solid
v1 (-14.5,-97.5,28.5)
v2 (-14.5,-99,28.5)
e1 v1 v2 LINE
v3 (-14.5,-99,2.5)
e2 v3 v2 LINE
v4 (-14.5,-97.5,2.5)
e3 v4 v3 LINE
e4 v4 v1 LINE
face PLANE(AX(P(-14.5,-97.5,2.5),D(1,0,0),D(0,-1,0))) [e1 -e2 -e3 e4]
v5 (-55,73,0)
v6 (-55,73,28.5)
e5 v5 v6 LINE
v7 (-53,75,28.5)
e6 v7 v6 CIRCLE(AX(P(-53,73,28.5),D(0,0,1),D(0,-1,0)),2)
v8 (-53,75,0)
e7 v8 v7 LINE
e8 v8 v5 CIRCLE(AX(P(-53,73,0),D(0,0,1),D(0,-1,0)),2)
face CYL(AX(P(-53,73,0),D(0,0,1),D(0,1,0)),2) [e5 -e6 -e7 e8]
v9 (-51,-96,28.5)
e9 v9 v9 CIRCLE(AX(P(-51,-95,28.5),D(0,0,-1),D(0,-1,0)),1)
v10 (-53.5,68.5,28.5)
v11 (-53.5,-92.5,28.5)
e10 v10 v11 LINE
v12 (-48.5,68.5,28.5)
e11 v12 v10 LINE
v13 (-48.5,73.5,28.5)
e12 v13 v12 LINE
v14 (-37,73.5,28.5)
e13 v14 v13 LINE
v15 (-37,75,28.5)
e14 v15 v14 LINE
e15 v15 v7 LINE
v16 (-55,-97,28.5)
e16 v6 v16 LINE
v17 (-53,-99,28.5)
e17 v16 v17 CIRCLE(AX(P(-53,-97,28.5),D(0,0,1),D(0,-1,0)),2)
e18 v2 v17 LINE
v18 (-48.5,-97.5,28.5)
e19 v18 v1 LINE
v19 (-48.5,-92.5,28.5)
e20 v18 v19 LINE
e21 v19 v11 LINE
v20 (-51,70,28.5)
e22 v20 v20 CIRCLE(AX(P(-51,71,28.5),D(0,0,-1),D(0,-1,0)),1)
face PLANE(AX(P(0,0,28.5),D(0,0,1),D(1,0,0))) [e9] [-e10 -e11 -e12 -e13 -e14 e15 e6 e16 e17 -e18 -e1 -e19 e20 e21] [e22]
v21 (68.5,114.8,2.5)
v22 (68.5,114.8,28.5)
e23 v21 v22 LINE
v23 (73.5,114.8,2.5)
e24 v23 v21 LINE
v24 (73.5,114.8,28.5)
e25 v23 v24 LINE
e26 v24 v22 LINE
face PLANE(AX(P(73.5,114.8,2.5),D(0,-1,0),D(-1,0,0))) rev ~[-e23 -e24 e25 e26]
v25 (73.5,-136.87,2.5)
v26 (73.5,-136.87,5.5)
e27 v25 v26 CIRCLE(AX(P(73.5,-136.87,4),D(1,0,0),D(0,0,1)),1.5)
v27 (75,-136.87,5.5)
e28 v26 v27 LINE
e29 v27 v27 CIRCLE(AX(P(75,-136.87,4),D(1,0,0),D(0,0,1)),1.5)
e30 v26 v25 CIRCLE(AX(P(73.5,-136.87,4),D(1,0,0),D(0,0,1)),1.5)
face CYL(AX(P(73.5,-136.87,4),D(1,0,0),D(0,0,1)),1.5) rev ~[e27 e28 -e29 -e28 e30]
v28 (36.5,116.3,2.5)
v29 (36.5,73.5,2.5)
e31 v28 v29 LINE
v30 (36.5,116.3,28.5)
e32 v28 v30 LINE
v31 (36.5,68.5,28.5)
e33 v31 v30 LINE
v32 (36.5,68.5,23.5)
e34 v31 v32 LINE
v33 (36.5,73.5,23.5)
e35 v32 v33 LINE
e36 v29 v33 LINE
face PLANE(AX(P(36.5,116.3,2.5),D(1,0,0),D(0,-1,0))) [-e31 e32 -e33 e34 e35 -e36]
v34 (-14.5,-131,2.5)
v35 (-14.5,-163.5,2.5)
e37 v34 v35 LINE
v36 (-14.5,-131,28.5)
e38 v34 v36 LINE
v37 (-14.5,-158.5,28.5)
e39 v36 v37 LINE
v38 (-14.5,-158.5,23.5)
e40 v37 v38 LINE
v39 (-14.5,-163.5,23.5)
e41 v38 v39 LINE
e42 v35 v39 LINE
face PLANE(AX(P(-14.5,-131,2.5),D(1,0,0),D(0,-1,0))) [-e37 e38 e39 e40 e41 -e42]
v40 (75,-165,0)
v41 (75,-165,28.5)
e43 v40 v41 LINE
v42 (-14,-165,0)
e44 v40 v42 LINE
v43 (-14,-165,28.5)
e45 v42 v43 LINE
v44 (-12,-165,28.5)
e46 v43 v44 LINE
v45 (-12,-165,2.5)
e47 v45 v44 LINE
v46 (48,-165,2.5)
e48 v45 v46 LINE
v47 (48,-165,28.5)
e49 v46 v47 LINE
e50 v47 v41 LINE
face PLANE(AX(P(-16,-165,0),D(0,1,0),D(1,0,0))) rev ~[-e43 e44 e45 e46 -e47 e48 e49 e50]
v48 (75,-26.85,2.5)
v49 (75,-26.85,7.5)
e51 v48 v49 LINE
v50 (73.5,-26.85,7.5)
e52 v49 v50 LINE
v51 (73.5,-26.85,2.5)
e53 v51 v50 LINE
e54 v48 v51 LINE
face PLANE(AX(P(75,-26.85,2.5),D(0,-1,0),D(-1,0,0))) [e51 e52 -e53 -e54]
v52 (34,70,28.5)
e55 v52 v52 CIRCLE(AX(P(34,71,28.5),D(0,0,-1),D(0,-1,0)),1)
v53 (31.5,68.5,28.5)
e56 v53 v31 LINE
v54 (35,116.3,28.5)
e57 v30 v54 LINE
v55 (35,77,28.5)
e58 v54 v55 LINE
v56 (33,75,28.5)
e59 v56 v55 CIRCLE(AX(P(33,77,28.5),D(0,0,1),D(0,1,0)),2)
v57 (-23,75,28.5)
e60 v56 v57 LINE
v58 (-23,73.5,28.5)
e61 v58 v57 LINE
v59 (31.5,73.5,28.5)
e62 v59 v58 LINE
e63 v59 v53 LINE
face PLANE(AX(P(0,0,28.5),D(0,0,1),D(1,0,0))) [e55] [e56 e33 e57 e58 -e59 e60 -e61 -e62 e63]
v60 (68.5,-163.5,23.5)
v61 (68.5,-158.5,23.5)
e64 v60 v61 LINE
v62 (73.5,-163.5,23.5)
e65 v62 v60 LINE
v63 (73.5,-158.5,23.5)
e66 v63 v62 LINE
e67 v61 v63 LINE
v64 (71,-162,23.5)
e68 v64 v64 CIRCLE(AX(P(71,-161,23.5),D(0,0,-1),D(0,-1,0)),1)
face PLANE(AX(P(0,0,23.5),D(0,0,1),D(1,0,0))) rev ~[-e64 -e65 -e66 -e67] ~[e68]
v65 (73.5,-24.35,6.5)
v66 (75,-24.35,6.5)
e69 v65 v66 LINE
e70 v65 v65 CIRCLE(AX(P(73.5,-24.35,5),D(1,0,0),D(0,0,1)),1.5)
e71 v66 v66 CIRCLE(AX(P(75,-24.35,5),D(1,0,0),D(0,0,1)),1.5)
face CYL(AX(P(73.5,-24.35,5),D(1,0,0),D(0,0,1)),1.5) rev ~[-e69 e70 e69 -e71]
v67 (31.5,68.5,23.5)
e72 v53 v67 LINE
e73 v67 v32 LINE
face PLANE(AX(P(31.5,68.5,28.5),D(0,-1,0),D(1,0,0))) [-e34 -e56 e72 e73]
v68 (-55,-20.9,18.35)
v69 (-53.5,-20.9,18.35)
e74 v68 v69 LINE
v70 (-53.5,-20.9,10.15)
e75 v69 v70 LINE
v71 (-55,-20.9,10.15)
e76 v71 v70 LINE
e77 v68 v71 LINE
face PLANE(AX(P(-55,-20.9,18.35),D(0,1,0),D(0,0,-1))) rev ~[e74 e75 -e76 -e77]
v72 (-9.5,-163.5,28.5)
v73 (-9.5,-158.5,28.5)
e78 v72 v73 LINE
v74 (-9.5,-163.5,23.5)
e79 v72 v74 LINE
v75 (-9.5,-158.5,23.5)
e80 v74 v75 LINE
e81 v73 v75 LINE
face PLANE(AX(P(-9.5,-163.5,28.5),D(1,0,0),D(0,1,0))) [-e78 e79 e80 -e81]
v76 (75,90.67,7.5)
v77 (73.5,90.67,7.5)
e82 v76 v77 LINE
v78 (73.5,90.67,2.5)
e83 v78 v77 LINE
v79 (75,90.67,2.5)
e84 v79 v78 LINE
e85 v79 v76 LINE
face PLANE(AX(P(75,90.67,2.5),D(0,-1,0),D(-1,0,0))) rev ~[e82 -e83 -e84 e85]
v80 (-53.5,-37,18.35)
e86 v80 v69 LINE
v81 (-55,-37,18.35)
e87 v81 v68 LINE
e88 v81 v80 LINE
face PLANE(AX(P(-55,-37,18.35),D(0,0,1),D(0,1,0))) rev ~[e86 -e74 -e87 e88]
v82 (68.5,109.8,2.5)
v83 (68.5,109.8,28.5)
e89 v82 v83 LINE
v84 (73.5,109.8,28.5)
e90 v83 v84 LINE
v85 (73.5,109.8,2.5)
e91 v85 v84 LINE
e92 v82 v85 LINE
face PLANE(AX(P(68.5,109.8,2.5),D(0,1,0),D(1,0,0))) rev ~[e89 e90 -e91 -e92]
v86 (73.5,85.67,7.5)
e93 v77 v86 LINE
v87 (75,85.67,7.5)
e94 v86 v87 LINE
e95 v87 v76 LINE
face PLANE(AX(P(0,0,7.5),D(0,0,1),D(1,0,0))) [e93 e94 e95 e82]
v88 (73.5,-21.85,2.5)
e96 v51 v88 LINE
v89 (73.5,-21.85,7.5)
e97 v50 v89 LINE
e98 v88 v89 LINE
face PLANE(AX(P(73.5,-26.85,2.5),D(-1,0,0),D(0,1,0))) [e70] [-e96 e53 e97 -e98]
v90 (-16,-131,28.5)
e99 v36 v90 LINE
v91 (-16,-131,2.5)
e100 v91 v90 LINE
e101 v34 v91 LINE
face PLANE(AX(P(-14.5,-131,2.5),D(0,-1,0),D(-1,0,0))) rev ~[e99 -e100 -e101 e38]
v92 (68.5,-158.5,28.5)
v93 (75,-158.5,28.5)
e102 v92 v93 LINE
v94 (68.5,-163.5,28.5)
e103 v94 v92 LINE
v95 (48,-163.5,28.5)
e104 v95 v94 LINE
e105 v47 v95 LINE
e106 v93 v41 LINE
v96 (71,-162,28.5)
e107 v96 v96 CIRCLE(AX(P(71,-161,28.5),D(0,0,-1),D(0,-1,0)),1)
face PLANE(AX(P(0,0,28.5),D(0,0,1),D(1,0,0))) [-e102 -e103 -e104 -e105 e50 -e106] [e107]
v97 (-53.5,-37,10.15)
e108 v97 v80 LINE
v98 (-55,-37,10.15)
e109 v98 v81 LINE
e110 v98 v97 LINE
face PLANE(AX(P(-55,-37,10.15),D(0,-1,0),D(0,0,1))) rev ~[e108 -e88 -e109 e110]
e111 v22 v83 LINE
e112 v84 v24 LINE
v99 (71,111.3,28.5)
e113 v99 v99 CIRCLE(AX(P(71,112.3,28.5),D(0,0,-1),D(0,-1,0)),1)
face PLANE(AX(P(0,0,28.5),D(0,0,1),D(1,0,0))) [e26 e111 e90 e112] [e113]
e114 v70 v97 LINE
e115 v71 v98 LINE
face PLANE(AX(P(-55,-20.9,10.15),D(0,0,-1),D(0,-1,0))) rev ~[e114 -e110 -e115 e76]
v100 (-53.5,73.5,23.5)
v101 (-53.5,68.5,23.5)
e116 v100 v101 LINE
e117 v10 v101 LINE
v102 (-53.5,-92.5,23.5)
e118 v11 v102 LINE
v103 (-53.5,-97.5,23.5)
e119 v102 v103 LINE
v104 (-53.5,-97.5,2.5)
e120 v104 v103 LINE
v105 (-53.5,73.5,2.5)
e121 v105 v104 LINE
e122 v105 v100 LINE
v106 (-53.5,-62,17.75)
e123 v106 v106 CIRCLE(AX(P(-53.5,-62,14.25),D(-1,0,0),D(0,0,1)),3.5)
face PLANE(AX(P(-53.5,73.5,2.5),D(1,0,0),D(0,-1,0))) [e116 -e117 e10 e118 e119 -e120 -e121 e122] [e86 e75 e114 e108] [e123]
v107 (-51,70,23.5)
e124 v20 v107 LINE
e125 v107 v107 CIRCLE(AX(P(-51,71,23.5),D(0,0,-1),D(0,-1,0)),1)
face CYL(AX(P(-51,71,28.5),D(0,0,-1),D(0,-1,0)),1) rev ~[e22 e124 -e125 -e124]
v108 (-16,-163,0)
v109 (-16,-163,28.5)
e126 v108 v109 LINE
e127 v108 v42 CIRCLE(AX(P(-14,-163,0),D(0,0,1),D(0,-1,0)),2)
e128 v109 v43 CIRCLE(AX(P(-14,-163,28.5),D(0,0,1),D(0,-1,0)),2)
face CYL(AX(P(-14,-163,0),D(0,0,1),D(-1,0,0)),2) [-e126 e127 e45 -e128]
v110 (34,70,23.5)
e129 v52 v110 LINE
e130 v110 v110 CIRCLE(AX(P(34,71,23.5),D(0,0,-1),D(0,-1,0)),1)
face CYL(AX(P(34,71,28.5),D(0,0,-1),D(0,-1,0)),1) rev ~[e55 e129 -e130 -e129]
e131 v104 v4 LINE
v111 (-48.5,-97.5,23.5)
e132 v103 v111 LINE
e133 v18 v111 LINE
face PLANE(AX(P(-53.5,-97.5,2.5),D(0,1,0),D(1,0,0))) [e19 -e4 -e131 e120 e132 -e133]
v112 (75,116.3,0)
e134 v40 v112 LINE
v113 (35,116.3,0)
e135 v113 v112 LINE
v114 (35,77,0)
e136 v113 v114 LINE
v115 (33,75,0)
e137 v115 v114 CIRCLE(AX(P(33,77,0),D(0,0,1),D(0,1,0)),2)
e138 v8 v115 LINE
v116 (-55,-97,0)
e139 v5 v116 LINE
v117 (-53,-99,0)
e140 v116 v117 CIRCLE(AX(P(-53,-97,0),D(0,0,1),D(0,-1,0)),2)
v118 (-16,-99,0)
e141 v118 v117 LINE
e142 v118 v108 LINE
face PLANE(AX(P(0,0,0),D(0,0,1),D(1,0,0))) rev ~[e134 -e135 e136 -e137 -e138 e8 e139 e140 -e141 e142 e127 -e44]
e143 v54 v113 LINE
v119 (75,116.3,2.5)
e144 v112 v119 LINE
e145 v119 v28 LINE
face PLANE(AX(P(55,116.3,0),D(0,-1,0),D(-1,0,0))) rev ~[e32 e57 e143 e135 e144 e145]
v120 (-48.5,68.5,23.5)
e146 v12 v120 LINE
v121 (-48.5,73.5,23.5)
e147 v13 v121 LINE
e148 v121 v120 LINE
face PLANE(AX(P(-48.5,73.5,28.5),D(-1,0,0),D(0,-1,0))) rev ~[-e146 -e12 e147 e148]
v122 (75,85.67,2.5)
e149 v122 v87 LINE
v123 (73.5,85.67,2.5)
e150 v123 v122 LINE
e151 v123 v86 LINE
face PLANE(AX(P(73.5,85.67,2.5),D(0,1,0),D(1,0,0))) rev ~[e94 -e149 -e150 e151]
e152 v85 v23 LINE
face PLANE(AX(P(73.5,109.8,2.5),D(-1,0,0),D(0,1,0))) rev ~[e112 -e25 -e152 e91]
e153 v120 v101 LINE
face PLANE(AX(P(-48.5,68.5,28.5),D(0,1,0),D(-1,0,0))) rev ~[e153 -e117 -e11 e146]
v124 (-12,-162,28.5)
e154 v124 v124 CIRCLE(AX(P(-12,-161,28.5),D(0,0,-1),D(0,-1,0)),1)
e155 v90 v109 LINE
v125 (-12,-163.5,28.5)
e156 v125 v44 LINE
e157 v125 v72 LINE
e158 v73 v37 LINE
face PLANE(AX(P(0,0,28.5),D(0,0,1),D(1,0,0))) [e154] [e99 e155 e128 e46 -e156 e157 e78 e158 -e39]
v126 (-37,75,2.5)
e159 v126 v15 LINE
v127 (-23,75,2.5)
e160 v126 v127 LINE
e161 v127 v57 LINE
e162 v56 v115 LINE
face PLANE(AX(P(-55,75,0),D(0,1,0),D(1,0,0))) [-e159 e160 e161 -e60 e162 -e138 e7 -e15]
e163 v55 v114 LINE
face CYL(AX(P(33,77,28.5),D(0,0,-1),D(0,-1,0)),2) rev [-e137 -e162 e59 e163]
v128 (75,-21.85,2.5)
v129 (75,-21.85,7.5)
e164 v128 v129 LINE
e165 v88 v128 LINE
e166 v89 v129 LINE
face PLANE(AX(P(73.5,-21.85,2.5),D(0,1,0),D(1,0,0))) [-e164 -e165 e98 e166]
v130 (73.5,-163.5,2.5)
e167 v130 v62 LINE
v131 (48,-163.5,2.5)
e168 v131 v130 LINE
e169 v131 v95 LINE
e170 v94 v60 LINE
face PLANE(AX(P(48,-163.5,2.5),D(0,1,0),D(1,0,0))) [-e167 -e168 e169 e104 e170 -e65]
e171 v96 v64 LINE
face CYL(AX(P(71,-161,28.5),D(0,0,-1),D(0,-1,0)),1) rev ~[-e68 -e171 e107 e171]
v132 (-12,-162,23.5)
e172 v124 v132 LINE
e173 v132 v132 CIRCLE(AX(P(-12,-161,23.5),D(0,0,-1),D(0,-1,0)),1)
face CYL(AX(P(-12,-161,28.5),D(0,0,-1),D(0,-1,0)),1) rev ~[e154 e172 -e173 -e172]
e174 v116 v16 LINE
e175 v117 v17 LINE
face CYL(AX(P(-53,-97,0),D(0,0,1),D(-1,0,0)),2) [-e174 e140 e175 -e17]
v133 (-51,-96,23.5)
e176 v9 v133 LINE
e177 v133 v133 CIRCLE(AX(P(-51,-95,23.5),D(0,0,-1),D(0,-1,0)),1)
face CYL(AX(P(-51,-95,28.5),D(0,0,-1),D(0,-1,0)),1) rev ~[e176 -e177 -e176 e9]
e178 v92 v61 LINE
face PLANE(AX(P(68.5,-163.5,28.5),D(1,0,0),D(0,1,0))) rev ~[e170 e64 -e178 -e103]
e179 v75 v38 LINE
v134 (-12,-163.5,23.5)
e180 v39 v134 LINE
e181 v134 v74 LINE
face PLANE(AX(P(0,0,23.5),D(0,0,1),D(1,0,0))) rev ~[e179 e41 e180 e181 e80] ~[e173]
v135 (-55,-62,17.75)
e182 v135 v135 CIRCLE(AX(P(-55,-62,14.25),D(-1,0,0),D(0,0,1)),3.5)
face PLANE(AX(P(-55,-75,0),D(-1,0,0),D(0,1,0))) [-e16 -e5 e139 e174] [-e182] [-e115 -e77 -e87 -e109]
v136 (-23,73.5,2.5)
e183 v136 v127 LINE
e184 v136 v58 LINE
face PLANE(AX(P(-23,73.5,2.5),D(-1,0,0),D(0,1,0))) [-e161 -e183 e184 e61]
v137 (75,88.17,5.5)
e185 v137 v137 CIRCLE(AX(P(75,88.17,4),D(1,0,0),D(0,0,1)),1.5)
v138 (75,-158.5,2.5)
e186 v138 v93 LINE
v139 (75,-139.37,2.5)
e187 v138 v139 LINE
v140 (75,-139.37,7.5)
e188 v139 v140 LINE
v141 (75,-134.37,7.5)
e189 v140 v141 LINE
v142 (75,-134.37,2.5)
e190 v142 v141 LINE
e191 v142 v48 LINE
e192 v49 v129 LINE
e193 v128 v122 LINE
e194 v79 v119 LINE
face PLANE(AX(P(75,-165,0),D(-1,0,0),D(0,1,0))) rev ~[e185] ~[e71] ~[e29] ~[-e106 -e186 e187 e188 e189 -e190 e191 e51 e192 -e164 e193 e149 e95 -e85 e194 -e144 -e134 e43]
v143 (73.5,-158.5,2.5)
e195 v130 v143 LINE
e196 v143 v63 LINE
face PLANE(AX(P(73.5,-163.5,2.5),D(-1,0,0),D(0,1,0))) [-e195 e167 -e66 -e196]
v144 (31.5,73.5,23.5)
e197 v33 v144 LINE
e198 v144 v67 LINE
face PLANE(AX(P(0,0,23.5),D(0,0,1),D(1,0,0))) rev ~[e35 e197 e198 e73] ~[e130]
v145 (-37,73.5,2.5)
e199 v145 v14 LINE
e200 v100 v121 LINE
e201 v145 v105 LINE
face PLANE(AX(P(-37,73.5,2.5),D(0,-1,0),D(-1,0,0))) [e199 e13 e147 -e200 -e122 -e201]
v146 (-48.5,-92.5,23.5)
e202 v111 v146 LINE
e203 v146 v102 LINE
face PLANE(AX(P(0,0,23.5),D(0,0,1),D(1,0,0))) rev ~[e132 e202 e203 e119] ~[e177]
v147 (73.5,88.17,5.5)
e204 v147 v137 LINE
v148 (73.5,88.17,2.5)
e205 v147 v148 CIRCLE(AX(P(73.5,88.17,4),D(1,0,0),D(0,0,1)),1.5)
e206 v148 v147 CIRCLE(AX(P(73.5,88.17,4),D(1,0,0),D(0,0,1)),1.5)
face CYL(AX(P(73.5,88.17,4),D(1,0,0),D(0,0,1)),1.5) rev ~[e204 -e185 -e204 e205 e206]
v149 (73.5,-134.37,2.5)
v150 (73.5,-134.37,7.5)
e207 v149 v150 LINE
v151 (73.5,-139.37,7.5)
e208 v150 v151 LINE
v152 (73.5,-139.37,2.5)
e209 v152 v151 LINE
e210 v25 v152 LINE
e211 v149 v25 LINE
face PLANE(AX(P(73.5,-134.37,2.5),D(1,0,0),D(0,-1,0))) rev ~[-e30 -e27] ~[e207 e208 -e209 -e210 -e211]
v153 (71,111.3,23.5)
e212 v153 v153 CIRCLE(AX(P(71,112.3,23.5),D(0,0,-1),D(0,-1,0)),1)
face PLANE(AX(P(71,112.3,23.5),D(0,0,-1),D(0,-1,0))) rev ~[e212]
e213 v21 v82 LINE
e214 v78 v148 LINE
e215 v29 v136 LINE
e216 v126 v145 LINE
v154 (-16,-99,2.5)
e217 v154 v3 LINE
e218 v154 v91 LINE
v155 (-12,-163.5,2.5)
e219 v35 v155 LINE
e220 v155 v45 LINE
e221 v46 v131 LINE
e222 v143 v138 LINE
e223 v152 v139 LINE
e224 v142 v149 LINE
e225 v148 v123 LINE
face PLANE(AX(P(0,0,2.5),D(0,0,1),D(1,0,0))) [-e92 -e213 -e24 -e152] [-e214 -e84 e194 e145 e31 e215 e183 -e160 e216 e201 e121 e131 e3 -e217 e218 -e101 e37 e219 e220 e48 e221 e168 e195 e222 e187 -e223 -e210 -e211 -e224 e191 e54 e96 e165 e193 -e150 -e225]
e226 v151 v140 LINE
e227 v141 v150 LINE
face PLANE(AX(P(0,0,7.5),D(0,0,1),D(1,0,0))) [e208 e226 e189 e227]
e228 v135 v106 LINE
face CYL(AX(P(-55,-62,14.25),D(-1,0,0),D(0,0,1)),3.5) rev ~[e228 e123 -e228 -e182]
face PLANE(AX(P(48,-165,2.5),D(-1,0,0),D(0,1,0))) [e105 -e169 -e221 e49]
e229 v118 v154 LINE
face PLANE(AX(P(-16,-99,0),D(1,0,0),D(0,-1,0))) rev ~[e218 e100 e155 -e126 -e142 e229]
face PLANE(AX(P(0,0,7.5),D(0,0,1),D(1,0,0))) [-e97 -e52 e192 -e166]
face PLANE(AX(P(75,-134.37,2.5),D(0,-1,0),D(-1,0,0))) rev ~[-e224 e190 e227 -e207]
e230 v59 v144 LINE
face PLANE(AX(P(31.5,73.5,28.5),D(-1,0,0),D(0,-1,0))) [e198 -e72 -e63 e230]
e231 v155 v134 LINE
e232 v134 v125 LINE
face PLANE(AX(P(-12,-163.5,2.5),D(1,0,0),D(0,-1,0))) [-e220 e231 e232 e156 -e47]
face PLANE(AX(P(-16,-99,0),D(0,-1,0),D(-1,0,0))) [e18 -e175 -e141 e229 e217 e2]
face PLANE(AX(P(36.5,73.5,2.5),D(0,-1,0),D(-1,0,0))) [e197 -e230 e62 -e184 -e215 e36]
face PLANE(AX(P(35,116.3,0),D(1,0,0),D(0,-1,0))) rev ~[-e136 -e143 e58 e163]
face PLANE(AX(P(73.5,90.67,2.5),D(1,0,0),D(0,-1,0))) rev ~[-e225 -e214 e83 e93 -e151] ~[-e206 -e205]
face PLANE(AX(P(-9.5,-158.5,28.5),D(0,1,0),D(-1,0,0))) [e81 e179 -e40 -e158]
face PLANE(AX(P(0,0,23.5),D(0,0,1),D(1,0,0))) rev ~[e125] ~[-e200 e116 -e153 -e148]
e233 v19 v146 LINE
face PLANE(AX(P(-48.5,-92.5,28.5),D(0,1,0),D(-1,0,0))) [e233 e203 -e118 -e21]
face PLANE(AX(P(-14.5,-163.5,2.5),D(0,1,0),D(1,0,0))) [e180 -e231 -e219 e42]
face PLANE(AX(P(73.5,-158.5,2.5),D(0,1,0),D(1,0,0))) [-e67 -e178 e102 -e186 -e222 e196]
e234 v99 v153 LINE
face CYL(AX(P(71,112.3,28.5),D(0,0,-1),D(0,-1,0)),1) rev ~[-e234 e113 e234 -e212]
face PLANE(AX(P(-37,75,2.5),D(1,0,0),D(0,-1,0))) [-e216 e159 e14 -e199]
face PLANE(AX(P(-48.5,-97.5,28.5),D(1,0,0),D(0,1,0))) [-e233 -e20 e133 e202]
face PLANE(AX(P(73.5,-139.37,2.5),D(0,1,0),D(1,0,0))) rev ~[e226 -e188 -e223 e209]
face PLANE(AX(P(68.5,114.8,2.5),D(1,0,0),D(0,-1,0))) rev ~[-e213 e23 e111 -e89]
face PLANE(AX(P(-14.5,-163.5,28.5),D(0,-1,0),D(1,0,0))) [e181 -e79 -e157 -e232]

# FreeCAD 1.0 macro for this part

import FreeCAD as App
import Part
import Sketcher
from FreeCAD import Vector


def edges_at(feature, points):
    """Names of the edges that pass closest to the given points."""
    edges = feature.Shape.Edges
    near = lambda p: min(range(len(edges)), key=lambda i: edges[i].distToShape(Part.Vertex(*p))[0])
    return sorted({f"Edge{near(p) + 1}" for p in points})


def add_polygon(sketch, points):
    """Adds a closed chain of lines whose ends are joined by coincident constraints."""
    first, n = sketch.GeometryCount, len(points)
    for a, b in zip(points, points[1:] + points[:1]):
        sketch.addGeometry(Part.LineSegment(App.Vector(*a, 0), App.Vector(*b, 0)), False)
    for i in range(n):
        sketch.addConstraint(Sketcher.Constraint("Coincident", first + i, 2, first + (i + 1) % n, 1))

doc = App.newDocument("Part")
body = doc.addObject("PartDesign::Body", "Body")

# Sketch on XY plane
sketch1 = body.newObject("Sketcher::SketchObject", "Sketch")
sketch1.AttachmentSupport = (doc.getObject("XY_Plane"), [""])
sketch1.MapMode = "FlatFace"
add_polygon(sketch1, [(35, 75), (-55, 75), (-55, -99), (-16, -99), (-16, -165), (75, -165), (75, 116), (35, 116)])  # lines 0-7
sketch1.addConstraint(Sketcher.Constraint("Horizontal", 0))
sketch1.addConstraint(Sketcher.Constraint("Vertical", 1))
sketch1.addConstraint(Sketcher.Constraint("Horizontal", 2))
sketch1.addConstraint(Sketcher.Constraint("Vertical", 3))
sketch1.addConstraint(Sketcher.Constraint("Horizontal", 4))
sketch1.addConstraint(Sketcher.Constraint("Vertical", 5))
sketch1.addConstraint(Sketcher.Constraint("Horizontal", 6))
sketch1.addConstraint(Sketcher.Constraint("Vertical", 7))
sketch1.addConstraint(Sketcher.Constraint("DistanceX", 0, 2, 0, 1, 90.0))
sketch1.addConstraint(Sketcher.Constraint("DistanceY", 5, 1, 5, 2, 281.3))
sketch1.addConstraint(Sketcher.Constraint("DistanceX", 2, 1, 2, 2, 39.0))
sketch1.addConstraint(Sketcher.Constraint("DistanceX", 4, 1, 4, 2, 91.0))
sketch1.addConstraint(Sketcher.Constraint("DistanceY", 1, 2, 1, 1, 174.0))
sketch1.addConstraint(Sketcher.Constraint("DistanceY", 3, 2, 3, 1, 66.0))
sketch1.addConstraint(Sketcher.Constraint("DistanceX", 0, 2, -1, 1, 55.0))
sketch1.addConstraint(Sketcher.Constraint("DistanceY", -1, 1, 0, 2, 75.0))
pad1 = body.newObject("PartDesign::Pad", "Pad")
pad1.Profile = sketch1
pad1.Length = 2.5

# Sketch on XY plane
sketch2 = body.newObject("Sketcher::SketchObject", "Sketch001")
sketch2.AttachmentSupport = (doc.getObject("XY_Plane"), [""])
sketch2.MapMode = "FlatFace"
sketch2.AttachmentOffset = App.Placement(Vector(0, 0, 2.5), App.Rotation())
add_polygon(sketch2, [(73.5, -139.4), (75, -139.4), (75, -134.4), (73.5, -134.4)])  # lines 0-3
add_polygon(sketch2, [(73.5, 85.7), (75, 85.7), (75, 90.7), (73.5, 90.7)])  # lines 4-7
add_polygon(sketch2, [(73.5, -26.9), (75, -26.9), (75, -21.9), (73.5, -21.9)])  # lines 8-11
sketch2.addConstraint(Sketcher.Constraint("Horizontal", 0))
sketch2.addConstraint(Sketcher.Constraint("Vertical", 1))
sketch2.addConstraint(Sketcher.Constraint("Horizontal", 2))
sketch2.addConstraint(Sketcher.Constraint("Vertical", 3))
sketch2.addConstraint(Sketcher.Constraint("Horizontal", 4))
sketch2.addConstraint(Sketcher.Constraint("Vertical", 5))
sketch2.addConstraint(Sketcher.Constraint("Horizontal", 6))
sketch2.addConstraint(Sketcher.Constraint("Vertical", 7))
sketch2.addConstraint(Sketcher.Constraint("Horizontal", 8))
sketch2.addConstraint(Sketcher.Constraint("Vertical", 9))
sketch2.addConstraint(Sketcher.Constraint("Horizontal", 10))
sketch2.addConstraint(Sketcher.Constraint("Vertical", 11))
sketch2.addConstraint(Sketcher.Constraint("Vertical", 1, 2, 4, 2))
sketch2.addConstraint(Sketcher.Constraint("Vertical", 3, 2, 6, 2))
sketch2.addConstraint(Sketcher.Constraint("Vertical", 5, 2, 8, 2))
sketch2.addConstraint(Sketcher.Constraint("Vertical", 7, 2, 10, 2))
sketch2.addConstraint(Sketcher.Constraint("Equal", 3, 5))
sketch2.addConstraint(Sketcher.Constraint("Equal", 7, 9))
sketch2.addConstraint(Sketcher.Constraint("DistanceY", 1, 1, 1, 2, 5.0))
sketch2.addConstraint(Sketcher.Constraint("DistanceX", 0, 1, 0, 2, 1.5))
sketch2.addConstraint(Sketcher.Constraint("DistanceX", -1, 1, 0, 2, 75.0))
sketch2.addConstraint(Sketcher.Constraint("DistanceY", 0, 2, -1, 1, 139.37))
sketch2.addConstraint(Sketcher.Constraint("DistanceY", -1, 1, 4, 2, 85.67))
sketch2.addConstraint(Sketcher.Constraint("DistanceY", 8, 2, -1, 1, 26.85))
pad2 = body.newObject("PartDesign::Pad", "Pad001")
pad2.Profile = sketch2
pad2.Length = 5

# Sketch on YZ plane
sketch3 = body.newObject("Sketcher::SketchObject", "Sketch002")
sketch3.AttachmentSupport = (doc.getObject("YZ_Plane"), [""])
sketch3.MapMode = "FlatFace"
sketch3.AttachmentOffset = App.Placement(Vector(0, 0, 73.5), App.Rotation())
sketch3.addGeometry(Part.Circle(Vector(88.2, 4, 0), Vector(0, 0, 1), 1.5), False)
sketch3.addGeometry(Part.Circle(Vector(-136.9, 4, 0), Vector(0, 0, 1), 1.5), False)
sketch3.addGeometry(Part.Circle(Vector(-24.4, 5, 0), Vector(0, 0, 1), 1.5), False)
sketch3.addConstraint(Sketcher.Constraint("Equal", 0, 1))
sketch3.addConstraint(Sketcher.Constraint("Equal", 1, 2))
sketch3.addConstraint(Sketcher.Constraint("Horizontal", 0, 3, 1, 3))
sketch3.addConstraint(Sketcher.Constraint("Diameter", 0, 3.0))
sketch3.addConstraint(Sketcher.Constraint("DistanceY", -1, 1, 0, 3, 4.0))
sketch3.addConstraint(Sketcher.Constraint("DistanceY", -1, 1, 2, 3, 5.0))
sketch3.addConstraint(Sketcher.Constraint("DistanceX", -1, 1, 0, 3, 88.17))
sketch3.addConstraint(Sketcher.Constraint("DistanceX", 1, 3, -1, 1, 136.87))
sketch3.addConstraint(Sketcher.Constraint("DistanceX", 2, 3, -1, 1, 24.35))
doc.recompute()
hole = body.newObject("PartDesign::Hole", "Hole")
hole.Profile = sketch3
hole.ThreadType = "None"
hole.Diameter = 3
hole.DepthType = "Dimension"
hole.Depth = 1.5
hole.DrillPoint = "Flat"
hole.Reversed = True

# Sketch on XY plane
sketch4 = body.newObject("Sketcher::SketchObject", "Sketch003")
sketch4.AttachmentSupport = (doc.getObject("XY_Plane"), [""])
sketch4.MapMode = "FlatFace"
sketch4.AttachmentOffset = App.Placement(Vector(0, 0, 2.5), App.Rotation())
add_polygon(sketch4, [(75, -158.5), (73.5, -158.5), (73.5, -163.5), (48, -163.5), (48, -165), (75, -165)])  # lines 0-5
add_polygon(sketch4, [(-16, -165), (-12, -165), (-12, -163.5), (-14.5, -163.5), (-14.5, -131), (-16, -131)])  # lines 6-11
add_polygon(sketch4, [(-55, -99), (-14.5, -99), (-14.5, -97.5), (-53.5, -97.5), (-53.5, 73.5), (-37, 73.5), (-37, 75), (-55, 75)])  # lines 12-19
add_polygon(sketch4, [(36.5, 73.5), (36.5, 116.3), (35, 116.3), (35, 75), (-23, 75), (-23, 73.5)])  # lines 20-25
add_polygon(sketch4, [(73.5, 109.8), (73.5, 114.8), (68.5, 114.8), (68.5, 109.8)])  # lines 26-29
sketch4.addConstraint(Sketcher.Constraint("Horizontal", 0))
sketch4.addConstraint(Sketcher.Constraint("Vertical", 1))
sketch4.addConstraint(Sketcher.Constraint("Horizontal", 2))
sketch4.addConstraint(Sketcher.Constraint("Vertical", 3))
sketch4.addConstraint(Sketcher.Constraint("Horizontal", 4))
sketch4.addConstraint(Sketcher.Constraint("Vertical", 5))
sketch4.addConstraint(Sketcher.Constraint("Horizontal", 6))
sketch4.addConstraint(Sketcher.Constraint("Vertical", 7))
sketch4.addConstraint(Sketcher.Constraint("Horizontal", 8))
sketch4.addConstraint(Sketcher.Constraint("Vertical", 9))
sketch4.addConstraint(Sketcher.Constraint("Horizontal", 10))
sketch4.addConstraint(Sketcher.Constraint("Vertical", 11))
sketch4.addConstraint(Sketcher.Constraint("Horizontal", 12))
sketch4.addConstraint(Sketcher.Constraint("Vertical", 13))
sketch4.addConstraint(Sketcher.Constraint("Horizontal", 14))
sketch4.addConstraint(Sketcher.Constraint("Vertical", 15))
sketch4.addConstraint(Sketcher.Constraint("Horizontal", 16))
sketch4.addConstraint(Sketcher.Constraint("Vertical", 17))
sketch4.addConstraint(Sketcher.Constraint("Horizontal", 18))
sketch4.addConstraint(Sketcher.Constraint("Vertical", 19))
sketch4.addConstraint(Sketcher.Constraint("Vertical", 20))
sketch4.addConstraint(Sketcher.Constraint("Horizontal", 21))
sketch4.addConstraint(Sketcher.Constraint("Vertical", 22))
sketch4.addConstraint(Sketcher.Constraint("Horizontal", 23))
sketch4.addConstraint(Sketcher.Constraint("Vertical", 24))
sketch4.addConstraint(Sketcher.Constraint("Horizontal", 25))
sketch4.addConstraint(Sketcher.Constraint("Vertical", 26))
sketch4.addConstraint(Sketcher.Constraint("Horizontal", 27))
sketch4.addConstraint(Sketcher.Constraint("Vertical", 28))
sketch4.addConstraint(Sketcher.Constraint("Horizontal", 29))
sketch4.addConstraint(Sketcher.Constraint("Horizontal", 4, 2, 6, 2))
sketch4.addConstraint(Sketcher.Constraint("Horizontal", 2, 2, 7, 2))
sketch4.addConstraint(Sketcher.Constraint("Horizontal", 18, 2, 22, 2))
sketch4.addConstraint(Sketcher.Constraint("Horizontal", 16, 2, 24, 2))
sketch4.addConstraint(Sketcher.Constraint("Vertical", 9, 2, 12, 2))
sketch4.addConstraint(Sketcher.Constraint("Vertical", 1, 2, 26, 2))
sketch4.addConstraint(Sketcher.Constraint("Equal", 0, 10))
sketch4.addConstraint(Sketcher.Constraint("Equal", 10, 21))
sketch4.addConstraint(Sketcher.Constraint("Equal", 29, 1))
sketch4.addConstraint(Sketcher.Constraint("Equal", 21, 3))
sketch4.addConstraint(Sketcher.Constraint("Equal", 7, 13))
sketch4.addConstraint(Sketcher.Constraint("Equal", 13, 17))
sketch4.addConstraint(Sketcher.Constraint("Equal", 1, 26))
sketch4.addConstraint(Sketcher.Constraint("DistanceX", 6, 1, 6, 2, 4.0))
sketch4.addConstraint(Sketcher.Constraint("DistanceX", 18, 2, 18, 1, 18.0))
sketch4.addConstraint(Sketcher.Constraint("DistanceX", 27, 2, 27, 1, 5.0))
sketch4.addConstraint(Sketcher.Constraint("DistanceX", 0, 2, 0, 1, 1.5))
sketch4.addConstraint(Sketcher.Constraint("DistanceX", 10, 2, 2, 2, 64.0))
sketch4.addConstraint(Sketcher.Constraint("DistanceY", 9, 2, 12, 2, 32.0))
sketch4.addConstraint(Sketcher.Constraint("DistanceX", 17, 2, 23, 2, 14.0))
sketch4.addConstraint(Sketcher.Constraint("DistanceX", 20, 2, 27, 2, 32.0))
sketch4.addConstraint(Sketcher.Constraint("DistanceX", 18, 2, 15, 2, 1.5))
sketch4.addConstraint(Sketcher.Constraint("DistanceY", 26, 2, 20, 2, 1.5))
sketch4.addConstraint(Sketcher.Constraint("DistanceX", 4, 1, 4, 2, 27.0))
sketch4.addConstraint(Sketcher.Constraint("DistanceX", 14, 2, 14, 1, 39.0))
sketch4.addConstraint(Sketcher.Constraint("DistanceY", 11, 2, 11, 1, 34.0))
sketch4.addConstraint(Sketcher.Constraint("DistanceY", 15, 1, 15, 2, 171.0))
sketch4.addConstraint(Sketcher.Constraint("DistanceY", 20, 1, 20, 2, 42.8))
sketch4.addConstraint(Sketcher.Constraint("DistanceX", -1, 1, 2, 2, 48.0))
sketch4.addConstraint(Sketcher.Constraint("DistanceY", 3, 2, -1, 1, 165.0))
pad3 = body.newObject("PartDesign::Pad", "Pad002")
pad3.Profile = sketch4
pad3.Length = 26
doc.recompute()

fillet = body.newObject("PartDesign::Fillet", "Fillet")
fillet.Base = (pad3, edges_at(pad3, [
    (35, 75, 14.25),
    (-55, 75, 14.25),
    (-55, -99, 14.25),
    (-16, -165, 14.25),
]))
fillet.Radius = 2

# Sketch on YZ plane
sketch5 = body.newObject("Sketcher::SketchObject", "Sketch004")
sketch5.AttachmentSupport = (doc.getObject("YZ_Plane"), [""])
sketch5.MapMode = "FlatFace"
sketch5.AttachmentOffset = App.Placement(Vector(0, 0, -55), App.Rotation())
add_polygon(sketch5, [(-37, 18.4), (-20.9, 18.4), (-20.9, 10.2), (-37, 10.2)])  # lines 0-3
sketch5.addGeometry(Part.Circle(Vector(-62, 14.2, 0), Vector(0, 0, 1), 3.5), False)  # 4
sketch5.addConstraint(Sketcher.Constraint("Horizontal", 0))
sketch5.addConstraint(Sketcher.Constraint("Vertical", 1))
sketch5.addConstraint(Sketcher.Constraint("Horizontal", 2))
sketch5.addConstraint(Sketcher.Constraint("Vertical", 3))
sketch5.addConstraint(Sketcher.Constraint("Diameter", 4, 7.0))
sketch5.addConstraint(Sketcher.Constraint("DistanceX", 0, 1, 0, 2, 16.1))
sketch5.addConstraint(Sketcher.Constraint("DistanceY", 1, 2, 1, 1, 8.2))
sketch5.addConstraint(Sketcher.Constraint("DistanceY", -1, 1, 4, 3, 14.25))
sketch5.addConstraint(Sketcher.Constraint("DistanceY", -1, 1, 1, 2, 10.15))
sketch5.addConstraint(Sketcher.Constraint("DistanceX", 4, 3, -1, 1, 62.0))
sketch5.addConstraint(Sketcher.Constraint("DistanceX", 2, 2, -1, 1, 37.0))
pocket1 = body.newObject("PartDesign::Pocket", "Pocket")
pocket1.Profile = sketch5
pocket1.Length = 1.5
pocket1.Reversed = True

# Sketch on XY plane
sketch6 = body.newObject("Sketcher::SketchObject", "Sketch005")
sketch6.AttachmentSupport = (doc.getObject("XY_Plane"), [""])
sketch6.MapMode = "FlatFace"
sketch6.AttachmentOffset = App.Placement(Vector(0, 0, 28.5), App.Rotation())
add_polygon(sketch6, [(68, -164), (74, -164), (74, -158), (68, -158)])  # lines 0-3
add_polygon(sketch6, [(-10, -158), (-14, -158), (-14, -164), (-10, -164)])  # lines 4-7
add_polygon(sketch6, [(-48, 74), (-54, 74), (-54, 68), (-48, 68)])  # lines 8-11
add_polygon(sketch6, [(-48, -92), (-54, -92), (-54, -98), (-48, -98)])  # lines 12-15
add_polygon(sketch6, [(36, 68), (36, 74), (32, 74), (32, 68)])  # lines 16-19
sketch6.addConstraint(Sketcher.Constraint("Horizontal", 0))
sketch6.addConstraint(Sketcher.Constraint("Vertical", 1))
sketch6.addConstraint(Sketcher.Constraint("Horizontal", 2))
sketch6.addConstraint(Sketcher.Constraint("Vertical", 3))
sketch6.addConstraint(Sketcher.Constraint("Horizontal", 4))
sketch6.addConstraint(Sketcher.Constraint("Vertical", 5))
sketch6.addConstraint(Sketcher.Constraint("Horizontal", 6))
sketch6.addConstraint(Sketcher.Constraint("Vertical", 7))
sketch6.addConstraint(Sketcher.Constraint("Horizontal", 8))
sketch6.addConstraint(Sketcher.Constraint("Vertical", 9))
sketch6.addConstraint(Sketcher.Constraint("Horizontal", 10))
sketch6.addConstraint(Sketcher.Constraint("Vertical", 11))
sketch6.addConstraint(Sketcher.Constraint("Horizontal", 12))
sketch6.addConstraint(Sketcher.Constraint("Vertical", 13))
sketch6.addConstraint(Sketcher.Constraint("Horizontal", 14))
sketch6.addConstraint(Sketcher.Constraint("Vertical", 15))
sketch6.addConstraint(Sketcher.Constraint("Vertical", 16))
sketch6.addConstraint(Sketcher.Constraint("Horizontal", 17))
sketch6.addConstraint(Sketcher.Constraint("Vertical", 18))
sketch6.addConstraint(Sketcher.Constraint("Horizontal", 19))
sketch6.addConstraint(Sketcher.Constraint("Horizontal", 2, 2, 4, 2))
sketch6.addConstraint(Sketcher.Constraint("Horizontal", 3, 2, 5, 2))
sketch6.addConstraint(Sketcher.Constraint("Horizontal", 11, 2, 16, 2))
sketch6.addConstraint(Sketcher.Constraint("Horizontal", 10, 2, 18, 2))
sketch6.addConstraint(Sketcher.Constraint("Vertical", 9, 2, 12, 2))
sketch6.addConstraint(Sketcher.Constraint("Vertical", 11, 2, 14, 2))
sketch6.addConstraint(Sketcher.Constraint("Equal", 2, 4))
sketch6.addConstraint(Sketcher.Constraint("Equal", 6, 8))
sketch6.addConstraint(Sketcher.Constraint("Equal", 14, 17))
sketch6.addConstraint(Sketcher.Constraint("Equal", 19, 1))
sketch6.addConstraint(Sketcher.Constraint("Equal", 7, 9))
sketch6.addConstraint(Sketcher.Constraint("Equal", 11, 13))
sketch6.addConstraint(Sketcher.Constraint("DistanceX", 0, 1, 0, 2, 5.0))
sketch6.addConstraint(Sketcher.Constraint("DistanceX", 4, 2, 2, 2, 83.0))
sketch6.addConstraint(Sketcher.Constraint("DistanceX", 8, 2, 4, 2, 39.0))
sketch6.addConstraint(Sketcher.Constraint("DistanceY", 4, 2, 8, 2, 232.0))
sketch6.addConstraint(Sketcher.Constraint("DistanceY", 4, 2, 12, 2, 66.0))
sketch6.addConstraint(Sketcher.Constraint("DistanceX", 11, 2, 16, 2, 85.0))
sketch6.addConstraint(Sketcher.Constraint("DistanceX", -1, 1, 0, 2, 73.5))
sketch6.addConstraint(Sketcher.Constraint("DistanceY", 0, 2, -1, 1, 163.5))
pad4 = body.newObject("PartDesign::Pad", "Pad003")
pad4.Profile = sketch6
pad4.Length = 5
pad4.Reversed = True

# Sketch on XY plane
sketch7 = body.newObject("Sketcher::SketchObject", "Sketch006")
sketch7.AttachmentSupport = (doc.getObject("XY_Plane"), [""])
sketch7.MapMode = "FlatFace"
sketch7.AttachmentOffset = App.Placement(Vector(0, 0, 28.5), App.Rotation())
sketch7.addGeometry(Part.Circle(Vector(71, -161, 0), Vector(0, 0, 1), 1), False)
sketch7.addGeometry(Part.Circle(Vector(-12, -161, 0), Vector(0, 0, 1), 1), False)
sketch7.addGeometry(Part.Circle(Vector(-51, -95, 0), Vector(0, 0, 1), 1), False)
sketch7.addGeometry(Part.Circle(Vector(71, 112.3, 0), Vector(0, 0, 1), 1), False)
sketch7.addGeometry(Part.Circle(Vector(34, 71, 0), Vector(0, 0, 1), 1), False)
sketch7.addGeometry(Part.Circle(Vector(-51, 71, 0), Vector(0, 0, 1), 1), False)
sketch7.addConstraint(Sketcher.Constraint("Equal", 0, 1))
sketch7.addConstraint(Sketcher.Constraint("Equal", 1, 2))
sketch7.addConstraint(Sketcher.Constraint("Equal", 2, 3))
sketch7.addConstraint(Sketcher.Constraint("Equal", 3, 4))
sketch7.addConstraint(Sketcher.Constraint("Equal", 4, 5))
sketch7.addConstraint(Sketcher.Constraint("Horizontal", 0, 3, 1, 3))
sketch7.addConstraint(Sketcher.Constraint("Horizontal", 4, 3, 5, 3))
sketch7.addConstraint(Sketcher.Constraint("Vertical", 0, 3, 3, 3))
sketch7.addConstraint(Sketcher.Constraint("Vertical", 2, 3, 5, 3))
sketch7.addConstraint(Sketcher.Constraint("Diameter", 0, 2.0))
sketch7.addConstraint(Sketcher.Constraint("DistanceX", -1, 1, 0, 3, 71.0))
sketch7.addConstraint(Sketcher.Constraint("DistanceY", 0, 3, -1, 1, 161.0))
sketch7.addConstraint(Sketcher.Constraint("DistanceX", 1, 3, -1, 1, 12.0))
sketch7.addConstraint(Sketcher.Constraint("DistanceX", 2, 3, -1, 1, 51.0))
sketch7.addConstraint(Sketcher.Constraint("DistanceY", 2, 3, -1, 1, 95.0))
sketch7.addConstraint(Sketcher.Constraint("DistanceX", -1, 1, 4, 3, 34.0))
sketch7.addConstraint(Sketcher.Constraint("DistanceY", -1, 1, 4, 3, 71.0))
sketch7.addConstraint(Sketcher.Constraint("DistanceY", -1, 1, 3, 3, 112.3))
doc.recompute()
hole2 = body.newObject("PartDesign::Hole", "Hole001")
hole2.Profile = sketch7
hole2.ThreadType = "None"
hole2.Diameter = 2
hole2.DepthType = "Dimension"
hole2.Depth = 5
hole2.DrillPoint = "Flat"

doc.recompute()
